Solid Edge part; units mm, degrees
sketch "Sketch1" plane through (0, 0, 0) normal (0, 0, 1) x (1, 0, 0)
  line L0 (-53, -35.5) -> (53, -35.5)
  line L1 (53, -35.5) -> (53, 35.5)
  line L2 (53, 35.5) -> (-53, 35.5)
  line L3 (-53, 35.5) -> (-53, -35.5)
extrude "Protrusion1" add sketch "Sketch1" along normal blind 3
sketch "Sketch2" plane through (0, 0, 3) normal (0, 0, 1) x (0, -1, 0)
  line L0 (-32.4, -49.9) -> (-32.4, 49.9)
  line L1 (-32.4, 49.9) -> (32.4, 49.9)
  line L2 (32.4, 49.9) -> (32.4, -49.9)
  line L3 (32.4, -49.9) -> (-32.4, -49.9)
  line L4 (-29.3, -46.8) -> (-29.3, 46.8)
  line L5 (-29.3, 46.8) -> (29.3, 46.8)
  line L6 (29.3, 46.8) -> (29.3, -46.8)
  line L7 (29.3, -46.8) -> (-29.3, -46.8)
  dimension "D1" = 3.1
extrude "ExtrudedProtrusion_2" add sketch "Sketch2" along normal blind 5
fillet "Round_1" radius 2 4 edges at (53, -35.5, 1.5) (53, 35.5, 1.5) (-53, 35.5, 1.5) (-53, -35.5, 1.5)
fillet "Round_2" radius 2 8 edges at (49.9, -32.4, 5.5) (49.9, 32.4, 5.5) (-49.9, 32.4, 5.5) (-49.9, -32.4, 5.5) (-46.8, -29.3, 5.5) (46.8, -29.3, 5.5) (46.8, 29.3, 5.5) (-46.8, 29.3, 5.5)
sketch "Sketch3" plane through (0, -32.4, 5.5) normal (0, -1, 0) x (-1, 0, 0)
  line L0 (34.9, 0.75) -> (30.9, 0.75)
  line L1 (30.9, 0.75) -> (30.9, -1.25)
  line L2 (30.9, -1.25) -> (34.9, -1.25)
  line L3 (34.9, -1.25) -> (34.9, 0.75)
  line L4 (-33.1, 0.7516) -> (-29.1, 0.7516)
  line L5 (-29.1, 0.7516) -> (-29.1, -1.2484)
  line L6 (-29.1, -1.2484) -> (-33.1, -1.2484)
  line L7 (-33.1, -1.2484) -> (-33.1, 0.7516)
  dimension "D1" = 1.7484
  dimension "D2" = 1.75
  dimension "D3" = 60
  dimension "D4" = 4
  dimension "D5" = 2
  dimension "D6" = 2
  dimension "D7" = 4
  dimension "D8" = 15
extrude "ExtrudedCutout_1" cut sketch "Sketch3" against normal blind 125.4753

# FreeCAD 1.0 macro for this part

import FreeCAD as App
import Part
import Sketcher
from FreeCAD import Vector
Q = App.Units.Quantity


def edges_at(feature, points):
    """Names of the edges that pass closest to the given points."""
    edges = feature.Shape.Edges
    near = lambda p: min(range(len(edges)), key=lambda i: edges[i].distToShape(Part.Vertex(*p))[0])
    return sorted({f"Edge{near(p) + 1}" for p in points})

doc = App.newDocument("Part")
body = doc.addObject("PartDesign::Body", "Body")

sketch1 = doc.addObject("Sketcher::SketchObject", "Sketch")
body.addObject(sketch1)
sketch1.AttachmentSupport = (doc.XY_Plane, [""])
sketch1.MapMode = "FlatFace"
sketch1.addGeometry(Part.LineSegment(Vector(-53, 36, 0), Vector(-53, -36, 0)), False)
sketch1.addGeometry(Part.LineSegment(Vector(-53, -36, 0), Vector(53, -36, 0)), False)
sketch1.addGeometry(Part.LineSegment(Vector(53, -36, 0), Vector(53, 36, 0)), False)
sketch1.addGeometry(Part.LineSegment(Vector(53, 36, 0), Vector(-53, 36, 0)), False)
sketch1.addConstraint(Sketcher.Constraint("Coincident", 0, 2, 1, 1))
sketch1.addConstraint(Sketcher.Constraint("Coincident", 1, 2, 2, 1))
sketch1.addConstraint(Sketcher.Constraint("Coincident", 2, 2, 3, 1))
sketch1.addConstraint(Sketcher.Constraint("Coincident", 3, 2, 0, 1))
sketch1.addConstraint(Sketcher.Constraint("Vertical", 0))
sketch1.addConstraint(Sketcher.Constraint("Horizontal", 1))
sketch1.addConstraint(Sketcher.Constraint("Vertical", 2))
sketch1.addConstraint(Sketcher.Constraint("Horizontal", 3))
sketch1.addConstraint(Sketcher.Constraint("Symmetric", 0, 2, 2, 2, -1, 1))
sketch1.addConstraint(Sketcher.Constraint("DistanceX", 1, 1, 1, 2, Q("106 mm")))
sketch1.addConstraint(Sketcher.Constraint("DistanceY", 0, 2, 0, 1, Q("71 mm")))
pad1 = doc.addObject("PartDesign::Pad", "Pad")
body.addObject(pad1)
pad1.Profile = sketch1
pad1.Length = 3

sketch2 = doc.addObject("Sketcher::SketchObject", "Sketch001")
body.addObject(sketch2)
sketch2.AttachmentSupport = (doc.XY_Plane, [""])
sketch2.MapMode = "FlatFace"
sketch2.AttachmentOffset = App.Placement(Vector(0, 0, 3), App.Rotation())
sketch2.addGeometry(Part.LineSegment(Vector(50, 32, 0), Vector(-50, 32, 0)), False)
sketch2.addGeometry(Part.LineSegment(Vector(-50, 32, 0), Vector(-50, -32, 0)), False)
sketch2.addGeometry(Part.LineSegment(Vector(-50, -32, 0), Vector(50, -32, 0)), False)
sketch2.addGeometry(Part.LineSegment(Vector(50, -32, 0), Vector(50, 32, 0)), False)
sketch2.addGeometry(Part.LineSegment(Vector(-47, -29, 0), Vector(-47, 29, 0)), False)
sketch2.addGeometry(Part.LineSegment(Vector(-47, 29, 0), Vector(47, 29, 0)), False)
sketch2.addGeometry(Part.LineSegment(Vector(47, 29, 0), Vector(47, -29, 0)), False)
sketch2.addGeometry(Part.LineSegment(Vector(47, -29, 0), Vector(-47, -29, 0)), False)
sketch2.addConstraint(Sketcher.Constraint("Coincident", 0, 2, 1, 1))
sketch2.addConstraint(Sketcher.Constraint("Coincident", 1, 2, 2, 1))
sketch2.addConstraint(Sketcher.Constraint("Coincident", 2, 2, 3, 1))
sketch2.addConstraint(Sketcher.Constraint("Coincident", 3, 2, 0, 1))
sketch2.addConstraint(Sketcher.Constraint("Coincident", 4, 2, 5, 1))
sketch2.addConstraint(Sketcher.Constraint("Coincident", 5, 2, 6, 1))
sketch2.addConstraint(Sketcher.Constraint("Coincident", 6, 2, 7, 1))
sketch2.addConstraint(Sketcher.Constraint("Coincident", 7, 2, 4, 1))
sketch2.addConstraint(Sketcher.Constraint("Horizontal", 0))
sketch2.addConstraint(Sketcher.Constraint("Vertical", 1))
sketch2.addConstraint(Sketcher.Constraint("Horizontal", 2))
sketch2.addConstraint(Sketcher.Constraint("Vertical", 3))
sketch2.addConstraint(Sketcher.Constraint("Vertical", 4))
sketch2.addConstraint(Sketcher.Constraint("Horizontal", 5))
sketch2.addConstraint(Sketcher.Constraint("Vertical", 6))
sketch2.addConstraint(Sketcher.Constraint("Horizontal", 7))
sketch2.addConstraint(Sketcher.Constraint("Symmetric", 0, 2, 2, 2, -1, 1))
sketch2.addConstraint(Sketcher.Constraint("Symmetric", 4, 2, 6, 2, -1, 1))
sketch2.addConstraint(Sketcher.Constraint("DistanceX", 0, 2, 0, 1, Q("99.8 mm")))
sketch2.addConstraint(Sketcher.Constraint("DistanceX", 5, 1, 5, 2, Q("93.6 mm")))
sketch2.addConstraint(Sketcher.Constraint("DistanceY", 1, 2, 1, 1, Q("64.8 mm")))
sketch2.addConstraint(Sketcher.Constraint("DistanceY", 4, 1, 4, 2, Q("58.6 mm")))
pad2 = doc.addObject("PartDesign::Pad", "Pad001")
body.addObject(pad2)
pad2.Profile = sketch2
pad2.Length = 5
doc.recompute()

fillet = doc.addObject("PartDesign::Fillet", "Fillet")
body.addObject(fillet)
fillet.Base = (pad2, edges_at(pad2, [
    (53, -35.5, 1.5),
    (53, 35.5, 1.5),
    (-53, 35.5, 1.5),
    (-53, -35.5, 1.5),
]))
fillet.Radius = 2
doc.recompute()

fillet2 = doc.addObject("PartDesign::Fillet", "Fillet001")
body.addObject(fillet2)
fillet2.Base = (fillet, edges_at(fillet, [
    (49.9, -32.4, 5.5),
    (49.9, 32.4, 5.5),
    (-49.9, 32.4, 5.5),
    (-49.9, -32.4, 5.5),
    (-46.8, -29.3, 5.5),
    (46.8, -29.3, 5.5),
    (46.8, 29.3, 5.5),
    (-46.8, 29.3, 5.5),
]))
fillet2.Radius = 2

sketch3 = doc.addObject("Sketcher::SketchObject", "Sketch002")
body.addObject(sketch3)
sketch3.AttachmentSupport = (doc.XZ_Plane, [""])
sketch3.MapMode = "FlatFace"
sketch3.AttachmentOffset = App.Placement(Vector(0, 0, 32.4), App.Rotation())
sketch3.addGeometry(Part.LineSegment(Vector(-34.9, 6.8, 0), Vector(-34.9, 4.8, 0)), False)
sketch3.addGeometry(Part.LineSegment(Vector(-34.9, 4.8, 0), Vector(-30.9, 4.8, 0)), False)
sketch3.addGeometry(Part.LineSegment(Vector(-30.9, 4.8, 0), Vector(-30.9, 6.8, 0)), False)
sketch3.addGeometry(Part.LineSegment(Vector(-30.9, 6.8, 0), Vector(-34.9, 6.8, 0)), False)
sketch3.addGeometry(Part.LineSegment(Vector(29.1, 4.7, 0), Vector(33.1, 4.7, 0)), False)
sketch3.addGeometry(Part.LineSegment(Vector(33.1, 4.7, 0), Vector(33.1, 6.7, 0)), False)
sketch3.addGeometry(Part.LineSegment(Vector(33.1, 6.7, 0), Vector(29.1, 6.7, 0)), False)
sketch3.addGeometry(Part.LineSegment(Vector(29.1, 6.7, 0), Vector(29.1, 4.7, 0)), False)
sketch3.addConstraint(Sketcher.Constraint("Coincident", 0, 2, 1, 1))
sketch3.addConstraint(Sketcher.Constraint("Coincident", 1, 2, 2, 1))
sketch3.addConstraint(Sketcher.Constraint("Coincident", 2, 2, 3, 1))
sketch3.addConstraint(Sketcher.Constraint("Coincident", 3, 2, 0, 1))
sketch3.addConstraint(Sketcher.Constraint("Coincident", 4, 2, 5, 1))
sketch3.addConstraint(Sketcher.Constraint("Coincident", 5, 2, 6, 1))
sketch3.addConstraint(Sketcher.Constraint("Coincident", 6, 2, 7, 1))
sketch3.addConstraint(Sketcher.Constraint("Coincident", 7, 2, 4, 1))
sketch3.addConstraint(Sketcher.Constraint("Vertical", 0))
sketch3.addConstraint(Sketcher.Constraint("Horizontal", 1))
sketch3.addConstraint(Sketcher.Constraint("Vertical", 2))
sketch3.addConstraint(Sketcher.Constraint("Horizontal", 3))
sketch3.addConstraint(Sketcher.Constraint("Horizontal", 4))
sketch3.addConstraint(Sketcher.Constraint("Vertical", 5))
sketch3.addConstraint(Sketcher.Constraint("Horizontal", 6))
sketch3.addConstraint(Sketcher.Constraint("Vertical", 7))
sketch3.addConstraint(Sketcher.Constraint("Equal", 3, 4))
sketch3.addConstraint(Sketcher.Constraint("Equal", 2, 5))
sketch3.addConstraint(Sketcher.Constraint("DistanceX", 1, 2, -1, 1, Q("30.9 mm")))
sketch3.addConstraint(Sketcher.Constraint("DistanceX", 1, 1, 1, 2, Q("4 mm")))
sketch3.addConstraint(Sketcher.Constraint("DistanceY", 0, 2, 0, 1, Q("2 mm")))
sketch3.addConstraint(Sketcher.Constraint("DistanceX", 1, 2, 4, 2, Q("64 mm")))
sketch3.addConstraint(Sketcher.Constraint("DistanceY", -1, 1, 0, 2, Q("4.75 mm")))
sketch3.addConstraint(Sketcher.Constraint("DistanceY", -1, 1, 4, 2, Q("4.7484 mm")))
pocket1 = doc.addObject("PartDesign::Pocket", "Pocket")
body.addObject(pocket1)
pocket1.Profile = sketch3
pocket1.Length = 125.4753

doc.recompute()
